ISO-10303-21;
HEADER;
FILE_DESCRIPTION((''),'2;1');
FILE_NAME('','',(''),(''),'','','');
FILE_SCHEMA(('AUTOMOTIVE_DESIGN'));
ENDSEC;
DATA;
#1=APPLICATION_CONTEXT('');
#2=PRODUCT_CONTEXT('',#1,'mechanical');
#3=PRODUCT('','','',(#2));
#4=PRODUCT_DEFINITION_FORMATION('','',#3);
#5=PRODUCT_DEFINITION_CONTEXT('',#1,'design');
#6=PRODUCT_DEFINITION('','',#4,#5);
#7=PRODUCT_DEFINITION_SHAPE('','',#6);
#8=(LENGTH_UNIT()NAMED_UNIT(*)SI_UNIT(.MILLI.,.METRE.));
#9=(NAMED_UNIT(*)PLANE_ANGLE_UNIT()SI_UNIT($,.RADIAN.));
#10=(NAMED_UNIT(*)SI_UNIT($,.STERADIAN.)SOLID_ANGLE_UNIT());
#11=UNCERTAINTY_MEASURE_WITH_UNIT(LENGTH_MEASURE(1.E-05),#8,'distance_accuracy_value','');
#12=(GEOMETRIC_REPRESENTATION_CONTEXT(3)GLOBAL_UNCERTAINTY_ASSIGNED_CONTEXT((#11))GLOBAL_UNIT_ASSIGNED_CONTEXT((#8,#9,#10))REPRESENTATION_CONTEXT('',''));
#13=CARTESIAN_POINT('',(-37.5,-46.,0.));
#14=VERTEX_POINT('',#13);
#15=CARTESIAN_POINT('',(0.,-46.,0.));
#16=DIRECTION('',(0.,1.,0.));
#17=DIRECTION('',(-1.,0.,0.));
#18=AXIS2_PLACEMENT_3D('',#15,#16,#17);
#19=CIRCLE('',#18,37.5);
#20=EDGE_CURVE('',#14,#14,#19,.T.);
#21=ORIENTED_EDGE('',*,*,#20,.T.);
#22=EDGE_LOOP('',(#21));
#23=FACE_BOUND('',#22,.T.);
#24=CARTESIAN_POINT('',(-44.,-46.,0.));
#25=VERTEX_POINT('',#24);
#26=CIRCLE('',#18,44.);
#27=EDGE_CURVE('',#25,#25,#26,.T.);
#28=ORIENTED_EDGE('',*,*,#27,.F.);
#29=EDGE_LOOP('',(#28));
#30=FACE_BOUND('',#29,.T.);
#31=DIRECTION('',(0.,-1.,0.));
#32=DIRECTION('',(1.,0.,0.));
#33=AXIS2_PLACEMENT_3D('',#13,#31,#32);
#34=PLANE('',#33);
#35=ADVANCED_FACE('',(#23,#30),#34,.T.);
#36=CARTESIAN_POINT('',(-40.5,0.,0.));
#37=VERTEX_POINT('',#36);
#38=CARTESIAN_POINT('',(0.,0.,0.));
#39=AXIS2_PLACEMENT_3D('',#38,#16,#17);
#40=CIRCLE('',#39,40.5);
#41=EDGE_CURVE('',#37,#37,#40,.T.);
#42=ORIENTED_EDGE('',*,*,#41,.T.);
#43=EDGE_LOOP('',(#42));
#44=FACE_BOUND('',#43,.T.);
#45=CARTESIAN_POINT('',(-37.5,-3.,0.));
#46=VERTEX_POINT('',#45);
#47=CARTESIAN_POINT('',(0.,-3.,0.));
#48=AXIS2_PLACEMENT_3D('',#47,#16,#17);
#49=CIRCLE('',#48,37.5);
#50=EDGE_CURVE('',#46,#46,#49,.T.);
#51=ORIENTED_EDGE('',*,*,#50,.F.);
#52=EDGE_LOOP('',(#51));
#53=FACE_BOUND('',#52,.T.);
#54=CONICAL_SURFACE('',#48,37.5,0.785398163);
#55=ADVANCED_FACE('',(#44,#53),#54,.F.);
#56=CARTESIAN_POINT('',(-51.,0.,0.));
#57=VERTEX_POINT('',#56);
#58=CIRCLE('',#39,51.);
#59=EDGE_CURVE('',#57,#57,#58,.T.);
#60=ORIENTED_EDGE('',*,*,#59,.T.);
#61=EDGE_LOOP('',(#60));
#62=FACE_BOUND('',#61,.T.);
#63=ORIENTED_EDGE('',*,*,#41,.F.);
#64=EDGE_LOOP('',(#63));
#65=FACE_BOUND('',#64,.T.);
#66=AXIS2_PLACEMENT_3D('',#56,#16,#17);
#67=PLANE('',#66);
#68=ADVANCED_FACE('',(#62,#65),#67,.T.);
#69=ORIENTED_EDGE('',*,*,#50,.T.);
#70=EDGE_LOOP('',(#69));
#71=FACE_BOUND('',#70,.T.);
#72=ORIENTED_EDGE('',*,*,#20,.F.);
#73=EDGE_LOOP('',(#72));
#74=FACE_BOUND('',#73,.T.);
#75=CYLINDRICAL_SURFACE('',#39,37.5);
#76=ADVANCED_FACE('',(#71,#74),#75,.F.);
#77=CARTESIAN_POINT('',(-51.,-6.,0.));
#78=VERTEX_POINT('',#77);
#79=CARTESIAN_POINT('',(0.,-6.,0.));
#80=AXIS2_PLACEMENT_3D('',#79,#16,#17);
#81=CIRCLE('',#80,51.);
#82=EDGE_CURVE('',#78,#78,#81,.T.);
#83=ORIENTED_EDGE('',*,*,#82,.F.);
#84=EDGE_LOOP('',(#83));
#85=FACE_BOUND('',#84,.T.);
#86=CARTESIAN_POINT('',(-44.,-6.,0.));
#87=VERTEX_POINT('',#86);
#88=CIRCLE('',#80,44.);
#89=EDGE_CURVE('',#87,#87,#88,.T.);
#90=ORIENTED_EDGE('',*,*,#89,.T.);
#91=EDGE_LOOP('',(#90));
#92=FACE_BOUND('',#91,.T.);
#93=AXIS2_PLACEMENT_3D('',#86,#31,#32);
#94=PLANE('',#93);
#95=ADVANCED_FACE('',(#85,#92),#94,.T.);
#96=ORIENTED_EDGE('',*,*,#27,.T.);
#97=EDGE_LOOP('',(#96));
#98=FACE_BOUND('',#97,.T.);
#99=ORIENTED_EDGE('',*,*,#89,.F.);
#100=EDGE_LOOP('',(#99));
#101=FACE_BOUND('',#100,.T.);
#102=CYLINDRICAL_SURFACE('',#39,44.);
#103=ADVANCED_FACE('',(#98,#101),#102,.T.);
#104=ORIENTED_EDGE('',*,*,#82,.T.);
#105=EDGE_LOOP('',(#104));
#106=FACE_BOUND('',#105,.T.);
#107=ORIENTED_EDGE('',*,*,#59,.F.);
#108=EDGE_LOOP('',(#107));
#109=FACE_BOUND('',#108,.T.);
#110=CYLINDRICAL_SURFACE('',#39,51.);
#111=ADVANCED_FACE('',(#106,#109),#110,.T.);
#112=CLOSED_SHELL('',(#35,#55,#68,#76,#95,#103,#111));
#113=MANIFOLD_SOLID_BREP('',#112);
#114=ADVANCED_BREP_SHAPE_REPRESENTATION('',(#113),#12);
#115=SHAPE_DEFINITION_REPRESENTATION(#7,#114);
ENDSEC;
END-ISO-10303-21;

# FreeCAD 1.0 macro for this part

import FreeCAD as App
import Part
import Sketcher
from FreeCAD import Vector
Q = App.Units.Quantity

doc = App.newDocument("Part")
body = doc.addObject("PartDesign::Body", "Body")

# Sketch on XY plane
sketch1 = body.newObject("Sketcher::SketchObject", "Sketch")
sketch1.AttachmentSupport = (doc.getObject("XY_Plane"), [""])
sketch1.MapMode = "FlatFace"
sketch1.addGeometry([
    Part.LineSegment(Vector(-40.5, 0, 0), Vector(-51, 0, 0)),  # 0
    Part.LineSegment(Vector(-51, 0, 0), Vector(-51, -6, 0)),  # 1
    Part.LineSegment(Vector(-51, -6, 0), Vector(-44, -6, 0)),  # 2
    Part.LineSegment(Vector(-44, -6, 0), Vector(-44, -46, 0)),  # 3
    Part.LineSegment(Vector(-44, -46, 0), Vector(-37.5, -46, 0)),  # 4
    Part.LineSegment(Vector(-37.5, -46, 0), Vector(-37.5, -3, 0)),  # 5
    Part.LineSegment(Vector(-37.5, -3, 0), Vector(-40.5, 0, 0)),  # 6
], False)
sketch1.addConstraint([
    Sketcher.Constraint("Coincident", 0, 2, 1, 1),
    Sketcher.Constraint("Coincident", 1, 2, 2, 1),
    Sketcher.Constraint("Coincident", 2, 2, 3, 1),
    Sketcher.Constraint("Coincident", 3, 2, 4, 1),
    Sketcher.Constraint("Coincident", 4, 2, 5, 1),
    Sketcher.Constraint("Coincident", 5, 2, 6, 1),
    Sketcher.Constraint("Coincident", 6, 2, 0, 1),
    Sketcher.Constraint("Horizontal", 0),
    Sketcher.Constraint("Vertical", 1),
    Sketcher.Constraint("Horizontal", 2),
    Sketcher.Constraint("Vertical", 3),
    Sketcher.Constraint("Horizontal", 4),
    Sketcher.Constraint("Vertical", 5),
    Sketcher.Constraint("PointOnObject", 0, 2, -1),
    Sketcher.Constraint("DistanceX", 2, 1, 2, 2, 7.0),
    Sketcher.Constraint("DistanceY", 1, 2, 1, 1, 6.0),
    Sketcher.Constraint("DistanceY", 3, 2, 3, 1, 40.0),
    Sketcher.Constraint("DistanceY", 5, 1, 5, 2, 43.0),
    Sketcher.Constraint("Angle", 6, Q("135 deg")),
    Sketcher.Constraint("DistanceX", 0, 2, 0, 1, 10.5),
    Sketcher.Constraint("DistanceX", 0, 2, -1, 1, 51.0),
])
revolution = body.newObject("PartDesign::Revolution", "Revolution")
revolution.Profile = sketch1
revolution.ReferenceAxis = (sketch1, ["V_Axis"])
revolution.Angle = 360

doc.recompute()
